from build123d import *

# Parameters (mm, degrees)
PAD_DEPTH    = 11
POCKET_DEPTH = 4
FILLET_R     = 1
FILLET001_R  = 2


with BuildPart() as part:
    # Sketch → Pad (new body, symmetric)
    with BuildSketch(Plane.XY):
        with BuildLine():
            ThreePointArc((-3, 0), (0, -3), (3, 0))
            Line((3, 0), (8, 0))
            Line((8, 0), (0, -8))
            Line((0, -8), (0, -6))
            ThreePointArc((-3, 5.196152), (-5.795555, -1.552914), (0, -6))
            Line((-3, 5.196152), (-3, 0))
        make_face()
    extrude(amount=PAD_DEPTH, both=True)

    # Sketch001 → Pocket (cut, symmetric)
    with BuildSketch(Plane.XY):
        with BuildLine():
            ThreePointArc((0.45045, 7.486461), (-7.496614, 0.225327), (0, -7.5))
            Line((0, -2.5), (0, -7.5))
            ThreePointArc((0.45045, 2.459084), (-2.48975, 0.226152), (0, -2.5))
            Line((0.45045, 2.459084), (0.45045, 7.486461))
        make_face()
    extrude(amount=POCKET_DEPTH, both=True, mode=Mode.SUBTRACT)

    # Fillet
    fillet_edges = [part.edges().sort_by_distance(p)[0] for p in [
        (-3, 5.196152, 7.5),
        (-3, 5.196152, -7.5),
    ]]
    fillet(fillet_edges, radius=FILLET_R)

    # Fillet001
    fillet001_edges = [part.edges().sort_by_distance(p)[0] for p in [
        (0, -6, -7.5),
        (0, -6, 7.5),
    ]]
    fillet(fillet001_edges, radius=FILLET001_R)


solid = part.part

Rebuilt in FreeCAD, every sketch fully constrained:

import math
import FreeCAD as App
import Part
import Sketcher
Q = App.Units.Quantity


def edges_at(feature, points):
    """Names of the edges that pass closest to the given points."""
    edges = feature.Shape.Edges
    near = lambda p: min(range(len(edges)), key=lambda i: edges[i].distToShape(Part.Vertex(*p))[0])
    return sorted({f"Edge{near(p) + 1}" for p in points})

doc = App.newDocument("Part")
body = doc.addObject("PartDesign::Body", "Body")

# Sketch on XY plane
sketch1 = doc.addObject("Sketcher::SketchObject", "Sketch")
body.addObject(sketch1)
sketch1.AttachmentSupport = (doc.XY_Plane, [""])
sketch1.MapMode = "FlatFace"
sketch1.addGeometry([
    Part.ArcOfCircle(Part.Circle(App.Vector(0, 0, 0), App.Vector(0, 0, 1), 3), math.radians(180), math.radians(360)),  # 0
    Part.LineSegment(App.Vector(-3, 0, 0), App.Vector(-3, 5.196152, 0)),  # 1
    Part.ArcOfCircle(Part.Circle(App.Vector(0, 0, 0), App.Vector(0, 0, 1), 6), math.radians(120), math.radians(270.000001)),  # 2
    Part.LineSegment(App.Vector(0, -6, 0), App.Vector(0, -8, 0)),  # 3
    Part.LineSegment(App.Vector(0, -8, 0), App.Vector(8, 0, 0)),  # 4
    Part.LineSegment(App.Vector(8, 0, 0), App.Vector(3, 0, 0)),  # 5
], False)
sketch1.addConstraint([
    Sketcher.Constraint("Tangent", 0, 1, 1, 1),
    Sketcher.Constraint("Coincident", 1, 2, 2, 1),
    Sketcher.Constraint("Coincident", 2, 2, 3, 1),
    Sketcher.Constraint("Coincident", 3, 2, 4, 1),
    Sketcher.Constraint("Coincident", 4, 2, 5, 1),
    Sketcher.Constraint("Coincident", 5, 2, 0, 2),
    Sketcher.Constraint("Vertical", 1),
    Sketcher.Constraint("Vertical", 3),
    Sketcher.Constraint("Horizontal", 5),
    Sketcher.Constraint("Coincident", 0, 3, -1, 1),
    Sketcher.Constraint("Coincident", 2, 3, -1, 1),
    Sketcher.Constraint("PointOnObject", 2, 2, -2),
    Sketcher.Constraint("PointOnObject", 4, 2, -1),
    Sketcher.Constraint("Radius", 0, Q("3 mm")),
    Sketcher.Constraint("Radius", 2, Q("6 mm")),
    Sketcher.Constraint("DistanceX", 5, 2, 5, 1, Q("5 mm")),
    Sketcher.Constraint("DistanceY", 3, 2, 3, 1, Q("2 mm")),
])
pad1 = doc.addObject("PartDesign::Pad", "Pad")
body.addObject(pad1)
pad1.Profile = sketch1
pad1.Length = 22
pad1.Midplane = True

# Sketch on XY plane
sketch2 = doc.addObject("Sketcher::SketchObject", "Sketch001")
body.addObject(sketch2)
sketch2.AttachmentSupport = (doc.XY_Plane, [""])
sketch2.MapMode = "FlatFace"
sketch2.addGeometry([
    Part.ArcOfCircle(Part.Circle(App.Vector(0.000001, 0, 0), App.Vector(0, 0, 1), 7.5), math.radians(86.556747), math.radians(269.999996)),
    Part.LineSegment(App.Vector(0, -7.5, 0), App.Vector(0, -2.5, 0)),
    Part.ArcOfCircle(Part.Circle(App.Vector(0, 0, 0), App.Vector(0, 0, 1), 2.5), math.radians(79.619755), math.radians(270.000001)),
    Part.LineSegment(App.Vector(0.45045, 2.459084, 0), App.Vector(0.45045, 7.486461, 0)),
], False)
sketch2.addConstraint([
    Sketcher.Constraint("Coincident", 0, 2, 1, 1),
    Sketcher.Constraint("Coincident", 1, 2, 2, 2),
    Sketcher.Constraint("Coincident", 2, 1, 3, 1),
    Sketcher.Constraint("Coincident", 3, 2, 0, 1),
    Sketcher.Constraint("Vertical", 1),
    Sketcher.Constraint("Vertical", 3),
    Sketcher.Constraint("Coincident", 0, 3, -1, 1),
    Sketcher.Constraint("Coincident", 2, 3, -1, 1),
    Sketcher.Constraint("PointOnObject", 0, 2, -2),
    Sketcher.Constraint("Radius", 0, Q("7.5 mm")),
    Sketcher.Constraint("Radius", 2, Q("2.5 mm")),
    Sketcher.Constraint("DistanceY", 3, 1, 3, 2, Q("5.027377 mm")),
])
pocket1 = doc.addObject("PartDesign::Pocket", "Pocket")
body.addObject(pocket1)
pocket1.Profile = sketch2
pocket1.Length = 8
pocket1.Midplane = True
doc.recompute()

fillet = doc.addObject("PartDesign::Fillet", "Fillet")
body.addObject(fillet)
fillet.Base = (pocket1, edges_at(pocket1, [(-3, 5.196, 7.5), (-3, 5.196, -7.5)]))
fillet.Radius = 1
doc.recompute()

fillet2 = doc.addObject("PartDesign::Fillet", "Fillet001")
body.addObject(fillet2)
fillet2.Base = (fillet, edges_at(fillet, [(0, -6, -7.5), (0, -6, 7.5)]))
fillet2.Radius = 2

doc.recompute()
